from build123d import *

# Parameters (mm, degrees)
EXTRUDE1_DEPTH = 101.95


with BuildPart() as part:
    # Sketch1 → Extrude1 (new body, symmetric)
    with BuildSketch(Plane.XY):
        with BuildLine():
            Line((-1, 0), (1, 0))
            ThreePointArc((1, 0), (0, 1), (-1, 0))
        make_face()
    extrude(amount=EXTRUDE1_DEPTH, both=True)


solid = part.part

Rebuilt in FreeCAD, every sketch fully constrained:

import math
import FreeCAD as App
import Part
import Sketcher
from FreeCAD import Vector
Q = App.Units.Quantity

doc = App.newDocument("Part")
body = doc.addObject("PartDesign::Body", "Body")

sketch1 = doc.addObject("Sketcher::SketchObject", "Sketch")
body.addObject(sketch1)
sketch1.AttachmentSupport = (doc.XY_Plane, [""])
sketch1.MapMode = "FlatFace"
sketch1.addGeometry(Part.LineSegment(Vector(-1, 0, 0), Vector(1, 0, 0)), False)
sketch1.addGeometry(Part.ArcOfCircle(Part.Circle(Vector(0, 0, 0), Vector(0, 0, 1), 1), math.radians(0), math.radians(180)), False)
sketch1.addConstraint(Sketcher.Constraint("Coincident", 0, 1, 1, 2))
sketch1.addConstraint(Sketcher.Constraint("Coincident", 1, 1, 0, 2))
sketch1.addConstraint(Sketcher.Constraint("Horizontal", 0))
sketch1.addConstraint(Sketcher.Constraint("Coincident", 1, 3, -1, 1))
sketch1.addConstraint(Sketcher.Constraint("PointOnObject", 0, 1, -1))
sketch1.addConstraint(Sketcher.Constraint("Radius", 1, Q("1 mm")))
pad1 = doc.addObject("PartDesign::Pad", "Pad")
body.addObject(pad1)
pad1.Profile = sketch1
pad1.Length = 203.9
pad1.Midplane = True

doc.recompute()
